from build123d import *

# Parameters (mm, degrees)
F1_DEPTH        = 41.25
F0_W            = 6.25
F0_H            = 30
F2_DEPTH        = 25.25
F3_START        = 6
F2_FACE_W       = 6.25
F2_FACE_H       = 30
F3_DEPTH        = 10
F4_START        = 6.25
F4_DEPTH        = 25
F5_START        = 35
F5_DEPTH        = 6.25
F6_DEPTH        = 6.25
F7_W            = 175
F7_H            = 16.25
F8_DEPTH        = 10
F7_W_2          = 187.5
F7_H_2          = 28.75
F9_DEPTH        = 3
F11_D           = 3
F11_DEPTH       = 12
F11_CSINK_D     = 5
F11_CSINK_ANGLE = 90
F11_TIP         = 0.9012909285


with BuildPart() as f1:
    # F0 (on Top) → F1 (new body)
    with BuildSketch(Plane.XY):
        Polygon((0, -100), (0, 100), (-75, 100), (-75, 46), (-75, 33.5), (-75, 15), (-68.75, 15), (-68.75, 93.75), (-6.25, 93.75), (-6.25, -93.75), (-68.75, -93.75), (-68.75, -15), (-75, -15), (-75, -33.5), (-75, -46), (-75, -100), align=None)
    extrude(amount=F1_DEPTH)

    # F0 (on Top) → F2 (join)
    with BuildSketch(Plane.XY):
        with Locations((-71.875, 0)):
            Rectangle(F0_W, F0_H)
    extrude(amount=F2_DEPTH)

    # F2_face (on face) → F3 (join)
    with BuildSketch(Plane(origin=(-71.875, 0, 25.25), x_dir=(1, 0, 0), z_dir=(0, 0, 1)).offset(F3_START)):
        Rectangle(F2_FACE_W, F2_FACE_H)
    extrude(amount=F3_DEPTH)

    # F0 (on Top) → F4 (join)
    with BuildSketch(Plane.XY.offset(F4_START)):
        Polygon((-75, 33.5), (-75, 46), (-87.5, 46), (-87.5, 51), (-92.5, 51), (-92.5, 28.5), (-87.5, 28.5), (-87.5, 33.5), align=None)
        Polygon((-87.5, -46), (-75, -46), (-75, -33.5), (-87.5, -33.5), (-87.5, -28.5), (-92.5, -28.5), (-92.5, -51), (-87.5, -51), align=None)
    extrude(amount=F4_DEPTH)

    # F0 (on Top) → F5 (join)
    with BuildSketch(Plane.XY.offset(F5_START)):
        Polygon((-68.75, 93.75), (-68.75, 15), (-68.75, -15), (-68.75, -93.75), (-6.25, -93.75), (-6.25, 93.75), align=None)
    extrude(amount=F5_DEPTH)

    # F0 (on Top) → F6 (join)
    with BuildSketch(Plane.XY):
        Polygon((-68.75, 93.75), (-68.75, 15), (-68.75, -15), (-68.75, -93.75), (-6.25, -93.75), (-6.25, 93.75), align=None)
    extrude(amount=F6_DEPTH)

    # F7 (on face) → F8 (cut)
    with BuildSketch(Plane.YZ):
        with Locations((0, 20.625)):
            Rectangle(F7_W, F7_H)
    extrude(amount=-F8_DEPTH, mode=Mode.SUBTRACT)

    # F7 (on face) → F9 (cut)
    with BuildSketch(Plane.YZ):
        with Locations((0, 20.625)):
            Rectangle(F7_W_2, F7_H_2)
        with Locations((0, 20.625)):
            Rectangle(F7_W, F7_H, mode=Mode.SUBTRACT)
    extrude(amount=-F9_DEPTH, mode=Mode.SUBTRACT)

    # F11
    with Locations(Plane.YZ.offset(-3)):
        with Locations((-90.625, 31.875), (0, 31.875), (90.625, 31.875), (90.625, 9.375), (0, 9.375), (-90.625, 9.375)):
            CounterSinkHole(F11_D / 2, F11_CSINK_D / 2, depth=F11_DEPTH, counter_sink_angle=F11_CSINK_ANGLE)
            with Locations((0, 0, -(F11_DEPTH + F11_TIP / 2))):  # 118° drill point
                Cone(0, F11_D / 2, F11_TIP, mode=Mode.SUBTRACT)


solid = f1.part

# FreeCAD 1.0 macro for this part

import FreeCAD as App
import Part
import Sketcher
from FreeCAD import Vector

doc = App.newDocument("Part")
params = doc.addObject("Spreadsheet::Sheet", "Params")
for row, (alias, value) in enumerate([
    ("sketch1_width", "75 mm"),
    ("sketch1_height", "200 mm"),
    ("sketch1_height2", "85 mm"),
    ("sketch1_width2", "62.5 mm"),
    ("sketch1_height3", "187.5 mm"),
    ("pad1_length", "41.25 mm"),
    ("sketch2_height", "30 mm"),
    ("sketch2_width", "6.25 mm"),
    ("pad2_length", "25.25 mm"),
    ("sketch3_height", "30 mm"),
    ("sketch3_width", "6.25 mm"),
    ("pad3_length", "10 mm"),
    ("sketch4_width", "5 mm"),
    ("sketch4_width2", "12.5 mm"),
    ("pad4_length", "25 mm"),
    ("sketch5_width", "62.5 mm"),
    ("sketch5_height", "187.5 mm"),
    ("pad5_length", "6.25 mm"),
    ("sketch6_width", "62.5 mm"),
    ("sketch6_height", "187.5 mm"),
    ("pad6_length", "6.25 mm"),
    ("sketch7_width", "175 mm"),
    ("sketch7_height", "16.25 mm"),
    ("pocket1_length", "10 mm"),
    ("sketch8_width", "175 mm"),
    ("sketch8_width2", "187.5 mm"),
    ("sketch8_height", "28.75 mm"),
    ("sketch8_height2", "16.25 mm"),
    ("pocket2_length", "3 mm"),
    ("sketch9_diameter", "3 mm"),
    ("hole_diameter", "3 mm"),
    ("hole_depth", "12 mm"),
    ("hole_csink_diameter", "5 mm"),
], start=1):
    params.set(f"A{row}", alias)
    params.set(f"B{row}", "=" + value)
    params.setAlias(f"B{row}", alias)

body = doc.addObject("PartDesign::Body", "Body")

# Sketch on XY plane
sketch1 = body.newObject("Sketcher::SketchObject", "Sketch")
sketch1.AttachmentSupport = (doc.getObject("XY_Plane"), [""])
sketch1.MapMode = "FlatFace"
sketch1.addGeometry(Part.LineSegment(Vector(0, -100, 0), Vector(0, 100, 0)), False)
sketch1.addGeometry(Part.LineSegment(Vector(0, 100, 0), Vector(-75, 100, 0)), False)
sketch1.addGeometry(Part.LineSegment(Vector(-75, 100, 0), Vector(-75, 15, 0)), False)
sketch1.addGeometry(Part.LineSegment(Vector(-75, 15, 0), Vector(-69, 15, 0)), False)
sketch1.addGeometry(Part.LineSegment(Vector(-69, 15, 0), Vector(-69, 94, 0)), False)
sketch1.addGeometry(Part.LineSegment(Vector(-69, 94, 0), Vector(-6, 94, 0)), False)
sketch1.addGeometry(Part.LineSegment(Vector(-6, 94, 0), Vector(-6, -94, 0)), False)
sketch1.addGeometry(Part.LineSegment(Vector(-6, -94, 0), Vector(-69, -94, 0)), False)
sketch1.addGeometry(Part.LineSegment(Vector(-69, -94, 0), Vector(-69, -15, 0)), False)
sketch1.addGeometry(Part.LineSegment(Vector(-69, -15, 0), Vector(-75, -15, 0)), False)
sketch1.addGeometry(Part.LineSegment(Vector(-75, -15, 0), Vector(-75, -100, 0)), False)
sketch1.addGeometry(Part.LineSegment(Vector(-75, -100, 0), Vector(0, -100, 0)), False)
sketch1.addConstraint(Sketcher.Constraint("Coincident", 0, 2, 1, 1))
sketch1.addConstraint(Sketcher.Constraint("Coincident", 1, 2, 2, 1))
sketch1.addConstraint(Sketcher.Constraint("Coincident", 2, 2, 3, 1))
sketch1.addConstraint(Sketcher.Constraint("Coincident", 3, 2, 4, 1))
sketch1.addConstraint(Sketcher.Constraint("Coincident", 4, 2, 5, 1))
sketch1.addConstraint(Sketcher.Constraint("Coincident", 5, 2, 6, 1))
sketch1.addConstraint(Sketcher.Constraint("Coincident", 6, 2, 7, 1))
sketch1.addConstraint(Sketcher.Constraint("Coincident", 7, 2, 8, 1))
sketch1.addConstraint(Sketcher.Constraint("Coincident", 8, 2, 9, 1))
sketch1.addConstraint(Sketcher.Constraint("Coincident", 9, 2, 10, 1))
sketch1.addConstraint(Sketcher.Constraint("Coincident", 10, 2, 11, 1))
sketch1.addConstraint(Sketcher.Constraint("Coincident", 11, 2, 0, 1))
sketch1.addConstraint(Sketcher.Constraint("Vertical", 0))
sketch1.addConstraint(Sketcher.Constraint("Horizontal", 1))
sketch1.addConstraint(Sketcher.Constraint("Vertical", 2))
sketch1.addConstraint(Sketcher.Constraint("Horizontal", 3))
sketch1.addConstraint(Sketcher.Constraint("Vertical", 4))
sketch1.addConstraint(Sketcher.Constraint("Horizontal", 5))
sketch1.addConstraint(Sketcher.Constraint("Vertical", 6))
sketch1.addConstraint(Sketcher.Constraint("Horizontal", 7))
sketch1.addConstraint(Sketcher.Constraint("Vertical", 8))
sketch1.addConstraint(Sketcher.Constraint("Horizontal", 9))
sketch1.addConstraint(Sketcher.Constraint("Vertical", 10))
sketch1.addConstraint(Sketcher.Constraint("Horizontal", 11))
sketch1.addConstraint(Sketcher.Constraint("Symmetric", 0, 2, 11, 2, -1, 1))
sketch1.addConstraint(Sketcher.Constraint("Symmetric", 4, 2, 7, 2, -1))
sketch1.addConstraint(Sketcher.Constraint("Symmetric", 2, 2, 9, 2, -1))
sketch1.addConstraint(Sketcher.Constraint("DistanceX", 1, 2, 1, 1, 75.0))
sketch1.addConstraint(Sketcher.Constraint("DistanceY", 0, 1, 0, 2, 200.0))
sketch1.addConstraint(Sketcher.Constraint("DistanceY", 2, 2, 2, 1, 85.0))
sketch1.addConstraint(Sketcher.Constraint("DistanceX", 5, 1, 5, 2, 62.5))
sketch1.addConstraint(Sketcher.Constraint("DistanceY", 6, 2, 6, 1, 187.5))
sketch1.addConstraint(Sketcher.Constraint("DistanceX", 3, 1, 3, 2, 6.25))
sketch1.setExpression("Constraints[27]", "Params.sketch1_width")
sketch1.setExpression("Constraints[28]", "Params.sketch1_height")
sketch1.setExpression("Constraints[29]", "Params.sketch1_height2")
sketch1.setExpression("Constraints[30]", "Params.sketch1_width2")
sketch1.setExpression("Constraints[31]", "Params.sketch1_height3")
pad1 = body.newObject("PartDesign::Pad", "Pad")
pad1.Profile = sketch1
pad1.setExpression("Length", "Params.pad1_length")

# Sketch on XY plane
sketch2 = body.newObject("Sketcher::SketchObject", "Sketch001")
sketch2.AttachmentSupport = (doc.getObject("XY_Plane"), [""])
sketch2.MapMode = "FlatFace"
sketch2.addGeometry(Part.LineSegment(Vector(-75, 15, 0), Vector(-75, -15, 0)), False)
sketch2.addGeometry(Part.LineSegment(Vector(-75, -15, 0), Vector(-69, -15, 0)), False)
sketch2.addGeometry(Part.LineSegment(Vector(-69, -15, 0), Vector(-69, 15, 0)), False)
sketch2.addGeometry(Part.LineSegment(Vector(-69, 15, 0), Vector(-75, 15, 0)), False)
sketch2.addConstraint(Sketcher.Constraint("Coincident", 0, 2, 1, 1))
sketch2.addConstraint(Sketcher.Constraint("Coincident", 1, 2, 2, 1))
sketch2.addConstraint(Sketcher.Constraint("Coincident", 2, 2, 3, 1))
sketch2.addConstraint(Sketcher.Constraint("Coincident", 3, 2, 0, 1))
sketch2.addConstraint(Sketcher.Constraint("Vertical", 0))
sketch2.addConstraint(Sketcher.Constraint("Horizontal", 1))
sketch2.addConstraint(Sketcher.Constraint("Vertical", 2))
sketch2.addConstraint(Sketcher.Constraint("Horizontal", 3))
sketch2.addConstraint(Sketcher.Constraint("DistanceY", 0, 2, 0, 1, 30.0))
sketch2.addConstraint(Sketcher.Constraint("DistanceX", 0, 2, -1, 1, 75.0))
sketch2.addConstraint(Sketcher.Constraint("DistanceY", 0, 2, -1, 1, 15.0))
sketch2.addConstraint(Sketcher.Constraint("DistanceX", 1, 1, 1, 2, 6.25))
sketch2.setExpression("Constraints[8]", "Params.sketch2_height")
sketch2.setExpression("Constraints[11]", "Params.sketch2_width")
pad2 = body.newObject("PartDesign::Pad", "Pad001")
pad2.Profile = sketch2
pad2.setExpression("Length", "Params.pad2_length")

# Sketch on XY plane
sketch3 = body.newObject("Sketcher::SketchObject", "Sketch002")
sketch3.AttachmentSupport = (doc.getObject("XY_Plane"), [""])
sketch3.MapMode = "FlatFace"
sketch3.AttachmentOffset = App.Placement(Vector(0, 0, 31.25), App.Rotation())
sketch3.addGeometry(Part.LineSegment(Vector(-75, 15, 0), Vector(-75, -15, 0)), False)
sketch3.addGeometry(Part.LineSegment(Vector(-75, -15, 0), Vector(-69, -15, 0)), False)
sketch3.addGeometry(Part.LineSegment(Vector(-69, -15, 0), Vector(-69, 15, 0)), False)
sketch3.addGeometry(Part.LineSegment(Vector(-69, 15, 0), Vector(-75, 15, 0)), False)
sketch3.addConstraint(Sketcher.Constraint("Coincident", 0, 2, 1, 1))
sketch3.addConstraint(Sketcher.Constraint("Coincident", 1, 2, 2, 1))
sketch3.addConstraint(Sketcher.Constraint("Coincident", 2, 2, 3, 1))
sketch3.addConstraint(Sketcher.Constraint("Coincident", 3, 2, 0, 1))
sketch3.addConstraint(Sketcher.Constraint("Vertical", 0))
sketch3.addConstraint(Sketcher.Constraint("Horizontal", 1))
sketch3.addConstraint(Sketcher.Constraint("Vertical", 2))
sketch3.addConstraint(Sketcher.Constraint("Horizontal", 3))
sketch3.addConstraint(Sketcher.Constraint("DistanceY", 0, 2, 0, 1, 30.0))
sketch3.addConstraint(Sketcher.Constraint("DistanceX", 0, 2, -1, 1, 75.0))
sketch3.addConstraint(Sketcher.Constraint("DistanceY", 0, 2, -1, 1, 15.0))
sketch3.addConstraint(Sketcher.Constraint("DistanceX", 1, 1, 1, 2, 6.25))
sketch3.setExpression("Constraints[8]", "Params.sketch3_height")
sketch3.setExpression("Constraints[11]", "Params.sketch3_width")
pad3 = body.newObject("PartDesign::Pad", "Pad002")
pad3.Profile = sketch3
pad3.setExpression("Length", "Params.pad3_length")

# Sketch on XY plane
sketch4 = body.newObject("Sketcher::SketchObject", "Sketch003")
sketch4.AttachmentSupport = (doc.getObject("XY_Plane"), [""])
sketch4.MapMode = "FlatFace"
sketch4.AttachmentOffset = App.Placement(Vector(0, 0, 6.25), App.Rotation())
sketch4.addGeometry(Part.LineSegment(Vector(-75, 34, 0), Vector(-75, 46, 0)), False)
sketch4.addGeometry(Part.LineSegment(Vector(-75, 46, 0), Vector(-88, 46, 0)), False)
sketch4.addGeometry(Part.LineSegment(Vector(-88, 46, 0), Vector(-88, 51, 0)), False)
sketch4.addGeometry(Part.LineSegment(Vector(-88, 51, 0), Vector(-92, 51, 0)), False)
sketch4.addGeometry(Part.LineSegment(Vector(-92, 51, 0), Vector(-92, 28, 0)), False)
sketch4.addGeometry(Part.LineSegment(Vector(-92, 28, 0), Vector(-88, 28, 0)), False)
sketch4.addGeometry(Part.LineSegment(Vector(-88, 28, 0), Vector(-88, 34, 0)), False)
sketch4.addGeometry(Part.LineSegment(Vector(-88, 34, 0), Vector(-75, 34, 0)), False)
sketch4.addGeometry(Part.LineSegment(Vector(-88, -46, 0), Vector(-75, -46, 0)), False)
sketch4.addGeometry(Part.LineSegment(Vector(-75, -46, 0), Vector(-75, -34, 0)), False)
sketch4.addGeometry(Part.LineSegment(Vector(-75, -34, 0), Vector(-88, -34, 0)), False)
sketch4.addGeometry(Part.LineSegment(Vector(-88, -34, 0), Vector(-88, -28, 0)), False)
sketch4.addGeometry(Part.LineSegment(Vector(-88, -28, 0), Vector(-92, -28, 0)), False)
sketch4.addGeometry(Part.LineSegment(Vector(-92, -28, 0), Vector(-92, -51, 0)), False)
sketch4.addGeometry(Part.LineSegment(Vector(-92, -51, 0), Vector(-88, -51, 0)), False)
sketch4.addGeometry(Part.LineSegment(Vector(-88, -51, 0), Vector(-88, -46, 0)), False)
sketch4.addConstraint(Sketcher.Constraint("Coincident", 0, 2, 1, 1))
sketch4.addConstraint(Sketcher.Constraint("Coincident", 1, 2, 2, 1))
sketch4.addConstraint(Sketcher.Constraint("Coincident", 2, 2, 3, 1))
sketch4.addConstraint(Sketcher.Constraint("Coincident", 3, 2, 4, 1))
sketch4.addConstraint(Sketcher.Constraint("Coincident", 4, 2, 5, 1))
sketch4.addConstraint(Sketcher.Constraint("Coincident", 5, 2, 6, 1))
sketch4.addConstraint(Sketcher.Constraint("Coincident", 6, 2, 7, 1))
sketch4.addConstraint(Sketcher.Constraint("Coincident", 7, 2, 0, 1))
sketch4.addConstraint(Sketcher.Constraint("Coincident", 8, 2, 9, 1))
sketch4.addConstraint(Sketcher.Constraint("Coincident", 9, 2, 10, 1))
sketch4.addConstraint(Sketcher.Constraint("Coincident", 10, 2, 11, 1))
sketch4.addConstraint(Sketcher.Constraint("Coincident", 11, 2, 12, 1))
sketch4.addConstraint(Sketcher.Constraint("Coincident", 12, 2, 13, 1))
sketch4.addConstraint(Sketcher.Constraint("Coincident", 13, 2, 14, 1))
sketch4.addConstraint(Sketcher.Constraint("Coincident", 14, 2, 15, 1))
sketch4.addConstraint(Sketcher.Constraint("Coincident", 15, 2, 8, 1))
sketch4.addConstraint(Sketcher.Constraint("Vertical", 0))
sketch4.addConstraint(Sketcher.Constraint("Horizontal", 1))
sketch4.addConstraint(Sketcher.Constraint("Vertical", 2))
sketch4.addConstraint(Sketcher.Constraint("Horizontal", 3))
sketch4.addConstraint(Sketcher.Constraint("Vertical", 4))
sketch4.addConstraint(Sketcher.Constraint("Horizontal", 5))
sketch4.addConstraint(Sketcher.Constraint("Vertical", 6))
sketch4.addConstraint(Sketcher.Constraint("Horizontal", 7))
sketch4.addConstraint(Sketcher.Constraint("Horizontal", 8))
sketch4.addConstraint(Sketcher.Constraint("Vertical", 9))
sketch4.addConstraint(Sketcher.Constraint("Horizontal", 10))
sketch4.addConstraint(Sketcher.Constraint("Vertical", 11))
sketch4.addConstraint(Sketcher.Constraint("Horizontal", 12))
sketch4.addConstraint(Sketcher.Constraint("Vertical", 13))
sketch4.addConstraint(Sketcher.Constraint("Horizontal", 14))
sketch4.addConstraint(Sketcher.Constraint("Vertical", 15))
sketch4.addConstraint(Sketcher.Constraint("Symmetric", 0, 2, 8, 2, -1))
sketch4.addConstraint(Sketcher.Constraint("Symmetric", 6, 2, 10, 2, -1))
sketch4.addConstraint(Sketcher.Constraint("Symmetric", 4, 2, 12, 2, -1))
sketch4.addConstraint(Sketcher.Constraint("Symmetric", 2, 2, 14, 2, -1))
sketch4.addConstraint(Sketcher.Constraint("Vertical", 2, 2, 5, 2))
sketch4.addConstraint(Sketcher.Constraint("Equal", 10, 0))
sketch4.addConstraint(Sketcher.Constraint("Equal", 14, 2))
sketch4.addConstraint(Sketcher.Constraint("Equal", 2, 6))
sketch4.addConstraint(Sketcher.Constraint("DistanceX", 3, 2, 3, 1, 5.0))
sketch4.addConstraint(Sketcher.Constraint("DistanceX", 1, 2, 1, 1, 12.5))
sketch4.addConstraint(Sketcher.Constraint("DistanceX", 0, 2, -1, 1, 75.0))
sketch4.addConstraint(Sketcher.Constraint("DistanceY", -1, 1, 0, 2, 46.0))
sketch4.setExpression("Constraints[40]", "Params.sketch4_width")
sketch4.setExpression("Constraints[41]", "Params.sketch4_width2")
pad4 = body.newObject("PartDesign::Pad", "Pad003")
pad4.Profile = sketch4
pad4.setExpression("Length", "Params.pad4_length")

# Sketch on XY plane
sketch5 = body.newObject("Sketcher::SketchObject", "Sketch004")
sketch5.AttachmentSupport = (doc.getObject("XY_Plane"), [""])
sketch5.MapMode = "FlatFace"
sketch5.AttachmentOffset = App.Placement(Vector(0, 0, 35), App.Rotation())
sketch5.addGeometry(Part.LineSegment(Vector(-69, 94, 0), Vector(-69, -94, 0)), False)
sketch5.addGeometry(Part.LineSegment(Vector(-69, -94, 0), Vector(-6, -94, 0)), False)
sketch5.addGeometry(Part.LineSegment(Vector(-6, -94, 0), Vector(-6, 94, 0)), False)
sketch5.addGeometry(Part.LineSegment(Vector(-6, 94, 0), Vector(-69, 94, 0)), False)
sketch5.addConstraint(Sketcher.Constraint("Coincident", 0, 2, 1, 1))
sketch5.addConstraint(Sketcher.Constraint("Coincident", 1, 2, 2, 1))
sketch5.addConstraint(Sketcher.Constraint("Coincident", 2, 2, 3, 1))
sketch5.addConstraint(Sketcher.Constraint("Coincident", 3, 2, 0, 1))
sketch5.addConstraint(Sketcher.Constraint("Vertical", 0))
sketch5.addConstraint(Sketcher.Constraint("Horizontal", 1))
sketch5.addConstraint(Sketcher.Constraint("Vertical", 2))
sketch5.addConstraint(Sketcher.Constraint("Horizontal", 3))
sketch5.addConstraint(Sketcher.Constraint("DistanceX", 1, 1, 1, 2, 62.5))
sketch5.addConstraint(Sketcher.Constraint("DistanceY", 0, 2, 0, 1, 187.5))
sketch5.addConstraint(Sketcher.Constraint("DistanceX", 0, 2, -1, 1, 68.75))
sketch5.addConstraint(Sketcher.Constraint("DistanceY", 0, 2, -1, 1, 93.75))
sketch5.setExpression("Constraints[8]", "Params.sketch5_width")
sketch5.setExpression("Constraints[9]", "Params.sketch5_height")
pad5 = body.newObject("PartDesign::Pad", "Pad004")
pad5.Profile = sketch5
pad5.setExpression("Length", "Params.pad5_length")

# Sketch on XY plane
sketch6 = body.newObject("Sketcher::SketchObject", "Sketch005")
sketch6.AttachmentSupport = (doc.getObject("XY_Plane"), [""])
sketch6.MapMode = "FlatFace"
sketch6.addGeometry(Part.LineSegment(Vector(-69, 94, 0), Vector(-69, -94, 0)), False)
sketch6.addGeometry(Part.LineSegment(Vector(-69, -94, 0), Vector(-6, -94, 0)), False)
sketch6.addGeometry(Part.LineSegment(Vector(-6, -94, 0), Vector(-6, 94, 0)), False)
sketch6.addGeometry(Part.LineSegment(Vector(-6, 94, 0), Vector(-69, 94, 0)), False)
sketch6.addConstraint(Sketcher.Constraint("Coincident", 0, 2, 1, 1))
sketch6.addConstraint(Sketcher.Constraint("Coincident", 1, 2, 2, 1))
sketch6.addConstraint(Sketcher.Constraint("Coincident", 2, 2, 3, 1))
sketch6.addConstraint(Sketcher.Constraint("Coincident", 3, 2, 0, 1))
sketch6.addConstraint(Sketcher.Constraint("Vertical", 0))
sketch6.addConstraint(Sketcher.Constraint("Horizontal", 1))
sketch6.addConstraint(Sketcher.Constraint("Vertical", 2))
sketch6.addConstraint(Sketcher.Constraint("Horizontal", 3))
sketch6.addConstraint(Sketcher.Constraint("DistanceX", 1, 1, 1, 2, 62.5))
sketch6.addConstraint(Sketcher.Constraint("DistanceY", 0, 2, 0, 1, 187.5))
sketch6.addConstraint(Sketcher.Constraint("DistanceX", 0, 2, -1, 1, 68.75))
sketch6.addConstraint(Sketcher.Constraint("DistanceY", 0, 2, -1, 1, 93.75))
sketch6.setExpression("Constraints[8]", "Params.sketch6_width")
sketch6.setExpression("Constraints[9]", "Params.sketch6_height")
pad6 = body.newObject("PartDesign::Pad", "Pad005")
pad6.Profile = sketch6
pad6.setExpression("Length", "Params.pad6_length")

# Sketch on YZ plane
sketch7 = body.newObject("Sketcher::SketchObject", "Sketch006")
sketch7.AttachmentSupport = (doc.getObject("YZ_Plane"), [""])
sketch7.MapMode = "FlatFace"
sketch7.addGeometry(Part.LineSegment(Vector(-88, 29, 0), Vector(-88, 12, 0)), False)
sketch7.addGeometry(Part.LineSegment(Vector(-88, 12, 0), Vector(88, 12, 0)), False)
sketch7.addGeometry(Part.LineSegment(Vector(88, 12, 0), Vector(88, 29, 0)), False)
sketch7.addGeometry(Part.LineSegment(Vector(88, 29, 0), Vector(-88, 29, 0)), False)
sketch7.addConstraint(Sketcher.Constraint("Coincident", 0, 2, 1, 1))
sketch7.addConstraint(Sketcher.Constraint("Coincident", 1, 2, 2, 1))
sketch7.addConstraint(Sketcher.Constraint("Coincident", 2, 2, 3, 1))
sketch7.addConstraint(Sketcher.Constraint("Coincident", 3, 2, 0, 1))
sketch7.addConstraint(Sketcher.Constraint("Vertical", 0))
sketch7.addConstraint(Sketcher.Constraint("Horizontal", 1))
sketch7.addConstraint(Sketcher.Constraint("Vertical", 2))
sketch7.addConstraint(Sketcher.Constraint("Horizontal", 3))
sketch7.addConstraint(Sketcher.Constraint("DistanceX", 1, 1, 1, 2, 175.0))
sketch7.addConstraint(Sketcher.Constraint("DistanceY", 0, 2, 0, 1, 16.25))
sketch7.addConstraint(Sketcher.Constraint("DistanceX", 0, 2, -1, 1, 87.5))
sketch7.addConstraint(Sketcher.Constraint("DistanceY", -1, 1, 0, 2, 12.5))
sketch7.setExpression("Constraints[8]", "Params.sketch7_width")
sketch7.setExpression("Constraints[9]", "Params.sketch7_height")
pocket1 = body.newObject("PartDesign::Pocket", "Pocket")
pocket1.Profile = sketch7
pocket1.setExpression("Length", "Params.pocket1_length")

# Sketch on YZ plane
sketch8 = body.newObject("Sketcher::SketchObject", "Sketch007")
sketch8.AttachmentSupport = (doc.getObject("YZ_Plane"), [""])
sketch8.MapMode = "FlatFace"
sketch8.addGeometry(Part.LineSegment(Vector(-94, 35, 0), Vector(-94, 6, 0)), False)
sketch8.addGeometry(Part.LineSegment(Vector(-94, 6, 0), Vector(94, 6, 0)), False)
sketch8.addGeometry(Part.LineSegment(Vector(94, 6, 0), Vector(94, 35, 0)), False)
sketch8.addGeometry(Part.LineSegment(Vector(94, 35, 0), Vector(-94, 35, 0)), False)
sketch8.addGeometry(Part.LineSegment(Vector(88, 12, 0), Vector(-88, 12, 0)), False)
sketch8.addGeometry(Part.LineSegment(Vector(-88, 12, 0), Vector(-88, 29, 0)), False)
sketch8.addGeometry(Part.LineSegment(Vector(-88, 29, 0), Vector(88, 29, 0)), False)
sketch8.addGeometry(Part.LineSegment(Vector(88, 29, 0), Vector(88, 12, 0)), False)
sketch8.addConstraint(Sketcher.Constraint("Coincident", 0, 2, 1, 1))
sketch8.addConstraint(Sketcher.Constraint("Coincident", 1, 2, 2, 1))
sketch8.addConstraint(Sketcher.Constraint("Coincident", 2, 2, 3, 1))
sketch8.addConstraint(Sketcher.Constraint("Coincident", 3, 2, 0, 1))
sketch8.addConstraint(Sketcher.Constraint("Coincident", 4, 2, 5, 1))
sketch8.addConstraint(Sketcher.Constraint("Coincident", 5, 2, 6, 1))
sketch8.addConstraint(Sketcher.Constraint("Coincident", 6, 2, 7, 1))
sketch8.addConstraint(Sketcher.Constraint("Coincident", 7, 2, 4, 1))
sketch8.addConstraint(Sketcher.Constraint("Vertical", 0))
sketch8.addConstraint(Sketcher.Constraint("Horizontal", 1))
sketch8.addConstraint(Sketcher.Constraint("Vertical", 2))
sketch8.addConstraint(Sketcher.Constraint("Horizontal", 3))
sketch8.addConstraint(Sketcher.Constraint("Horizontal", 4))
sketch8.addConstraint(Sketcher.Constraint("Vertical", 5))
sketch8.addConstraint(Sketcher.Constraint("Horizontal", 6))
sketch8.addConstraint(Sketcher.Constraint("Vertical", 7))
sketch8.addConstraint(Sketcher.Constraint("DistanceX", 4, 2, 4, 1, 175.0))
sketch8.addConstraint(Sketcher.Constraint("DistanceX", 1, 1, 1, 2, 187.5))
sketch8.addConstraint(Sketcher.Constraint("DistanceY", -1, 1, 2, 2, 35.0))
sketch8.addConstraint(Sketcher.Constraint("DistanceY", 0, 2, 0, 1, 28.75))
sketch8.addConstraint(Sketcher.Constraint("DistanceY", 5, 1, 5, 2, 16.25))
sketch8.addConstraint(Sketcher.Constraint("DistanceX", 4, 2, -1, 1, 87.5))
sketch8.addConstraint(Sketcher.Constraint("DistanceY", -1, 1, 4, 2, 12.5))
sketch8.addConstraint(Sketcher.Constraint("DistanceX", 0, 2, -1, 1, 93.75))
sketch8.setExpression("Constraints[16]", "Params.sketch8_width")
sketch8.setExpression("Constraints[17]", "Params.sketch8_width2")
sketch8.setExpression("Constraints[19]", "Params.sketch8_height")
sketch8.setExpression("Constraints[20]", "Params.sketch8_height2")
pocket2 = body.newObject("PartDesign::Pocket", "Pocket001")
pocket2.Profile = sketch8
pocket2.setExpression("Length", "Params.pocket2_length")

# Sketch on YZ plane
sketch9 = body.newObject("Sketcher::SketchObject", "Sketch008")
sketch9.AttachmentSupport = (doc.getObject("YZ_Plane"), [""])
sketch9.MapMode = "FlatFace"
sketch9.AttachmentOffset = App.Placement(Vector(0, 0, -3), App.Rotation())
sketch9.addGeometry(Part.Circle(Vector(-90.6, 31.9, 0), Vector(0, 0, 1), 1.5), False)
sketch9.addGeometry(Part.Circle(Vector(0, 31.9, 0), Vector(0, 0, 1), 1.5), False)
sketch9.addGeometry(Part.Circle(Vector(90.6, 31.9, 0), Vector(0, 0, 1), 1.5), False)
sketch9.addGeometry(Part.Circle(Vector(90.6, 9.4, 0), Vector(0, 0, 1), 1.5), False)
sketch9.addGeometry(Part.Circle(Vector(0, 9.4, 0), Vector(0, 0, 1), 1.5), False)
sketch9.addGeometry(Part.Circle(Vector(-90.6, 9.4, 0), Vector(0, 0, 1), 1.5), False)
sketch9.addConstraint(Sketcher.Constraint("Equal", 0, 1))
sketch9.addConstraint(Sketcher.Constraint("Equal", 1, 2))
sketch9.addConstraint(Sketcher.Constraint("Equal", 2, 3))
sketch9.addConstraint(Sketcher.Constraint("Equal", 3, 4))
sketch9.addConstraint(Sketcher.Constraint("Equal", 4, 5))
sketch9.addConstraint(Sketcher.Constraint("Symmetric", 0, 3, 2, 3, -2))
sketch9.addConstraint(Sketcher.Constraint("Symmetric", 3, 3, 5, 3, -2))
sketch9.addConstraint(Sketcher.Constraint("PointOnObject", 1, 3, -2))
sketch9.addConstraint(Sketcher.Constraint("PointOnObject", 4, 3, -2))
sketch9.addConstraint(Sketcher.Constraint("Horizontal", 0, 3, 1, 3))
sketch9.addConstraint(Sketcher.Constraint("Horizontal", 3, 3, 4, 3))
sketch9.addConstraint(Sketcher.Constraint("Vertical", 2, 3, 3, 3))
sketch9.addConstraint(Sketcher.Constraint("Diameter", 0, 3.0))
sketch9.addConstraint(Sketcher.Constraint("DistanceY", 3, 3, 2, 3, 22.5))
sketch9.addConstraint(Sketcher.Constraint("DistanceX", 0, 3, 2, 3, 181.25))
sketch9.addConstraint(Sketcher.Constraint("DistanceY", -1, 1, 0, 3, 31.875))
sketch9.setExpression("Constraints[12]", "Params.sketch9_diameter")
doc.recompute()
hole = body.newObject("PartDesign::Hole", "Hole")
hole.Profile = sketch9
hole.ThreadType = "None"
hole.setExpression("Diameter", "Params.hole_diameter")
hole.DepthType = "Dimension"
hole.setExpression("Depth", "Params.hole_depth")
hole.DrillPoint = "Angled"
hole.DrillPointAngle = 118
hole.HoleCutType = "Countersink"
hole.setExpression("HoleCutDiameter", "Params.hole_csink_diameter")
hole.HoleCutCountersinkAngle = 90

doc.recompute()
